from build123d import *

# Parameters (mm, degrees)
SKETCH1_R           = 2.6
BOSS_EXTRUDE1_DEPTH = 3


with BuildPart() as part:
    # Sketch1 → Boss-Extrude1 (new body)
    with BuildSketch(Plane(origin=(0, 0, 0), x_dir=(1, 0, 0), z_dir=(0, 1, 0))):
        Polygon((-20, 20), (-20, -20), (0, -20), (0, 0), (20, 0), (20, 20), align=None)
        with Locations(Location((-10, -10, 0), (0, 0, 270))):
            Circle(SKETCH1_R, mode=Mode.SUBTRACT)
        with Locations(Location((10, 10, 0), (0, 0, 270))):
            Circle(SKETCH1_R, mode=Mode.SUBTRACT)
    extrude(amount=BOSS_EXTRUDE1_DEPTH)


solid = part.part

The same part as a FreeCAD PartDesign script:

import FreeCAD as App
import Part
import Sketcher
Q = App.Units.Quantity

doc = App.newDocument("Part")
body = doc.addObject("PartDesign::Body", "Body")

# Sketch on XZ plane
sketch1 = body.newObject("Sketcher::SketchObject", "Sketch")
sketch1.AttachmentSupport = (doc.getObject("XZ_Plane"), [""])
sketch1.MapMode = "FlatFace"
sketch1.addGeometry([
    Part.LineSegment(App.Vector(-20, -20, 0), App.Vector(-20, 20, 0)),  # 0
    Part.LineSegment(App.Vector(-20, 20, 0), App.Vector(0, 20, 0)),  # 1
    Part.LineSegment(App.Vector(0, 20, 0), App.Vector(0, 0, 0)),  # 2
    Part.LineSegment(App.Vector(0, 0, 0), App.Vector(20, 0, 0)),  # 3
    Part.LineSegment(App.Vector(20, 0, 0), App.Vector(20, -20, 0)),  # 4
    Part.LineSegment(App.Vector(20, -20, 0), App.Vector(-20, -20, 0)),  # 5
    Part.Circle(App.Vector(-10, 10, 0), App.Vector(0, 0, 1), 2.6),  # 6
    Part.Circle(App.Vector(10, -10, 0), App.Vector(0, 0, 1), 2.6),  # 7
], False)
sketch1.addConstraint([
    Sketcher.Constraint("Coincident", 0, 2, 1, 1),
    Sketcher.Constraint("Coincident", 1, 2, 2, 1),
    Sketcher.Constraint("Coincident", 2, 2, 3, 1),
    Sketcher.Constraint("Coincident", 3, 2, 4, 1),
    Sketcher.Constraint("Coincident", 4, 2, 5, 1),
    Sketcher.Constraint("Coincident", 5, 2, 0, 1),
    Sketcher.Constraint("Vertical", 0),
    Sketcher.Constraint("Horizontal", 1),
    Sketcher.Constraint("Vertical", 2),
    Sketcher.Constraint("Horizontal", 3),
    Sketcher.Constraint("Vertical", 4),
    Sketcher.Constraint("Horizontal", 5),
    Sketcher.Constraint("Coincident", 2, 2, -1, 1),
    Sketcher.Constraint("Equal", 6, 7),
    Sketcher.Constraint("Symmetric", 6, 3, 7, 3, -1, 1),
    Sketcher.Constraint("Symmetric", 0, 2, 4, 2, -1, 1),
    Sketcher.Constraint("Equal", 5, 0),
    Sketcher.Constraint("Diameter", 6, Q("5.2 mm")),
    Sketcher.Constraint("DistanceX", 1, 1, 1, 2, Q("20 mm")),
    Sketcher.Constraint("DistanceX", 6, 3, -1, 1, Q("10 mm")),
    Sketcher.Constraint("DistanceY", -1, 1, 6, 3, Q("10 mm")),
])
pad1 = body.newObject("PartDesign::Pad", "Pad")
pad1.Profile = sketch1
pad1.Length = 3
pad1.Reversed = True

doc.recompute()
